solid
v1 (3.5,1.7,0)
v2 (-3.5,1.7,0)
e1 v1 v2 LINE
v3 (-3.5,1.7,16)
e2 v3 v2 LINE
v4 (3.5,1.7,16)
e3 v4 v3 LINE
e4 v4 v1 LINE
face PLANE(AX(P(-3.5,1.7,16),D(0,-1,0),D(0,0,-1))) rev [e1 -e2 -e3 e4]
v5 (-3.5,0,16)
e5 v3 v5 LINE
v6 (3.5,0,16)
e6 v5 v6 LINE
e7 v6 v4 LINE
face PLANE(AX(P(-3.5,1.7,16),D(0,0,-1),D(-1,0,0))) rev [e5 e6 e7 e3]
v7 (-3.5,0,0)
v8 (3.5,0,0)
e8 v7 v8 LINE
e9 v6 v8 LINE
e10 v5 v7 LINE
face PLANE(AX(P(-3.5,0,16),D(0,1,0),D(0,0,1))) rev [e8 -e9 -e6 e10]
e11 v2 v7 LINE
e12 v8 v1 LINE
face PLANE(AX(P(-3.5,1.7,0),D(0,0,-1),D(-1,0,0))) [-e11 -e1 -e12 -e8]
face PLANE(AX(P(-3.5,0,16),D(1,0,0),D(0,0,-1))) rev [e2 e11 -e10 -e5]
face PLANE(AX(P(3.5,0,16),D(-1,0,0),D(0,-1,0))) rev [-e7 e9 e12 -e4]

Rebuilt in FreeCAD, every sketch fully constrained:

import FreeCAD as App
import Part
import Sketcher
from FreeCAD import Vector

doc = App.newDocument("Part")
params = doc.addObject("Spreadsheet::Sheet", "Params")
for row, (alias, value) in enumerate([
    ("sketch1_width", "7 mm"),
    ("sketch1_height", "1.7 mm"),
    ("pad1_length", "16 mm"),
], start=1):
    params.set(f"A{row}", alias)
    params.set(f"B{row}", "=" + value)
    params.setAlias(f"B{row}", alias)

body = doc.addObject("PartDesign::Body", "Body")

# Sketch on XY plane
sketch1 = body.newObject("Sketcher::SketchObject", "Sketch")
sketch1.AttachmentSupport = (doc.getObject("XY_Plane"), [""])
sketch1.MapMode = "FlatFace"
sketch1.addGeometry([
    Part.LineSegment(Vector(-3.5, 1.7, 0), Vector(-3.5, 0, 0)),
    Part.LineSegment(Vector(-3.5, 0, 0), Vector(3.5, 0, 0)),
    Part.LineSegment(Vector(3.5, 0, 0), Vector(3.5, 1.7, 0)),
    Part.LineSegment(Vector(3.5, 1.7, 0), Vector(-3.5, 1.7, 0)),
], False)
sketch1.addConstraint([
    Sketcher.Constraint("Coincident", 0, 2, 1, 1),
    Sketcher.Constraint("Coincident", 1, 2, 2, 1),
    Sketcher.Constraint("Coincident", 2, 2, 3, 1),
    Sketcher.Constraint("Coincident", 3, 2, 0, 1),
    Sketcher.Constraint("Vertical", 0),
    Sketcher.Constraint("Horizontal", 1),
    Sketcher.Constraint("Vertical", 2),
    Sketcher.Constraint("Horizontal", 3),
    Sketcher.Constraint("Symmetric", 0, 2, 1, 2, -1, 1),
    Sketcher.Constraint("DistanceX", 1, 1, 1, 2, 7.0),
    Sketcher.Constraint("DistanceY", 0, 2, 0, 1, 1.7),
])
sketch1.setExpression("Constraints[9]", "Params.sketch1_width")
sketch1.setExpression("Constraints[10]", "Params.sketch1_height")
pad1 = body.newObject("PartDesign::Pad", "Pad")
pad1.Profile = sketch1
pad1.setExpression("Length", "Params.pad1_length")

doc.recompute()
